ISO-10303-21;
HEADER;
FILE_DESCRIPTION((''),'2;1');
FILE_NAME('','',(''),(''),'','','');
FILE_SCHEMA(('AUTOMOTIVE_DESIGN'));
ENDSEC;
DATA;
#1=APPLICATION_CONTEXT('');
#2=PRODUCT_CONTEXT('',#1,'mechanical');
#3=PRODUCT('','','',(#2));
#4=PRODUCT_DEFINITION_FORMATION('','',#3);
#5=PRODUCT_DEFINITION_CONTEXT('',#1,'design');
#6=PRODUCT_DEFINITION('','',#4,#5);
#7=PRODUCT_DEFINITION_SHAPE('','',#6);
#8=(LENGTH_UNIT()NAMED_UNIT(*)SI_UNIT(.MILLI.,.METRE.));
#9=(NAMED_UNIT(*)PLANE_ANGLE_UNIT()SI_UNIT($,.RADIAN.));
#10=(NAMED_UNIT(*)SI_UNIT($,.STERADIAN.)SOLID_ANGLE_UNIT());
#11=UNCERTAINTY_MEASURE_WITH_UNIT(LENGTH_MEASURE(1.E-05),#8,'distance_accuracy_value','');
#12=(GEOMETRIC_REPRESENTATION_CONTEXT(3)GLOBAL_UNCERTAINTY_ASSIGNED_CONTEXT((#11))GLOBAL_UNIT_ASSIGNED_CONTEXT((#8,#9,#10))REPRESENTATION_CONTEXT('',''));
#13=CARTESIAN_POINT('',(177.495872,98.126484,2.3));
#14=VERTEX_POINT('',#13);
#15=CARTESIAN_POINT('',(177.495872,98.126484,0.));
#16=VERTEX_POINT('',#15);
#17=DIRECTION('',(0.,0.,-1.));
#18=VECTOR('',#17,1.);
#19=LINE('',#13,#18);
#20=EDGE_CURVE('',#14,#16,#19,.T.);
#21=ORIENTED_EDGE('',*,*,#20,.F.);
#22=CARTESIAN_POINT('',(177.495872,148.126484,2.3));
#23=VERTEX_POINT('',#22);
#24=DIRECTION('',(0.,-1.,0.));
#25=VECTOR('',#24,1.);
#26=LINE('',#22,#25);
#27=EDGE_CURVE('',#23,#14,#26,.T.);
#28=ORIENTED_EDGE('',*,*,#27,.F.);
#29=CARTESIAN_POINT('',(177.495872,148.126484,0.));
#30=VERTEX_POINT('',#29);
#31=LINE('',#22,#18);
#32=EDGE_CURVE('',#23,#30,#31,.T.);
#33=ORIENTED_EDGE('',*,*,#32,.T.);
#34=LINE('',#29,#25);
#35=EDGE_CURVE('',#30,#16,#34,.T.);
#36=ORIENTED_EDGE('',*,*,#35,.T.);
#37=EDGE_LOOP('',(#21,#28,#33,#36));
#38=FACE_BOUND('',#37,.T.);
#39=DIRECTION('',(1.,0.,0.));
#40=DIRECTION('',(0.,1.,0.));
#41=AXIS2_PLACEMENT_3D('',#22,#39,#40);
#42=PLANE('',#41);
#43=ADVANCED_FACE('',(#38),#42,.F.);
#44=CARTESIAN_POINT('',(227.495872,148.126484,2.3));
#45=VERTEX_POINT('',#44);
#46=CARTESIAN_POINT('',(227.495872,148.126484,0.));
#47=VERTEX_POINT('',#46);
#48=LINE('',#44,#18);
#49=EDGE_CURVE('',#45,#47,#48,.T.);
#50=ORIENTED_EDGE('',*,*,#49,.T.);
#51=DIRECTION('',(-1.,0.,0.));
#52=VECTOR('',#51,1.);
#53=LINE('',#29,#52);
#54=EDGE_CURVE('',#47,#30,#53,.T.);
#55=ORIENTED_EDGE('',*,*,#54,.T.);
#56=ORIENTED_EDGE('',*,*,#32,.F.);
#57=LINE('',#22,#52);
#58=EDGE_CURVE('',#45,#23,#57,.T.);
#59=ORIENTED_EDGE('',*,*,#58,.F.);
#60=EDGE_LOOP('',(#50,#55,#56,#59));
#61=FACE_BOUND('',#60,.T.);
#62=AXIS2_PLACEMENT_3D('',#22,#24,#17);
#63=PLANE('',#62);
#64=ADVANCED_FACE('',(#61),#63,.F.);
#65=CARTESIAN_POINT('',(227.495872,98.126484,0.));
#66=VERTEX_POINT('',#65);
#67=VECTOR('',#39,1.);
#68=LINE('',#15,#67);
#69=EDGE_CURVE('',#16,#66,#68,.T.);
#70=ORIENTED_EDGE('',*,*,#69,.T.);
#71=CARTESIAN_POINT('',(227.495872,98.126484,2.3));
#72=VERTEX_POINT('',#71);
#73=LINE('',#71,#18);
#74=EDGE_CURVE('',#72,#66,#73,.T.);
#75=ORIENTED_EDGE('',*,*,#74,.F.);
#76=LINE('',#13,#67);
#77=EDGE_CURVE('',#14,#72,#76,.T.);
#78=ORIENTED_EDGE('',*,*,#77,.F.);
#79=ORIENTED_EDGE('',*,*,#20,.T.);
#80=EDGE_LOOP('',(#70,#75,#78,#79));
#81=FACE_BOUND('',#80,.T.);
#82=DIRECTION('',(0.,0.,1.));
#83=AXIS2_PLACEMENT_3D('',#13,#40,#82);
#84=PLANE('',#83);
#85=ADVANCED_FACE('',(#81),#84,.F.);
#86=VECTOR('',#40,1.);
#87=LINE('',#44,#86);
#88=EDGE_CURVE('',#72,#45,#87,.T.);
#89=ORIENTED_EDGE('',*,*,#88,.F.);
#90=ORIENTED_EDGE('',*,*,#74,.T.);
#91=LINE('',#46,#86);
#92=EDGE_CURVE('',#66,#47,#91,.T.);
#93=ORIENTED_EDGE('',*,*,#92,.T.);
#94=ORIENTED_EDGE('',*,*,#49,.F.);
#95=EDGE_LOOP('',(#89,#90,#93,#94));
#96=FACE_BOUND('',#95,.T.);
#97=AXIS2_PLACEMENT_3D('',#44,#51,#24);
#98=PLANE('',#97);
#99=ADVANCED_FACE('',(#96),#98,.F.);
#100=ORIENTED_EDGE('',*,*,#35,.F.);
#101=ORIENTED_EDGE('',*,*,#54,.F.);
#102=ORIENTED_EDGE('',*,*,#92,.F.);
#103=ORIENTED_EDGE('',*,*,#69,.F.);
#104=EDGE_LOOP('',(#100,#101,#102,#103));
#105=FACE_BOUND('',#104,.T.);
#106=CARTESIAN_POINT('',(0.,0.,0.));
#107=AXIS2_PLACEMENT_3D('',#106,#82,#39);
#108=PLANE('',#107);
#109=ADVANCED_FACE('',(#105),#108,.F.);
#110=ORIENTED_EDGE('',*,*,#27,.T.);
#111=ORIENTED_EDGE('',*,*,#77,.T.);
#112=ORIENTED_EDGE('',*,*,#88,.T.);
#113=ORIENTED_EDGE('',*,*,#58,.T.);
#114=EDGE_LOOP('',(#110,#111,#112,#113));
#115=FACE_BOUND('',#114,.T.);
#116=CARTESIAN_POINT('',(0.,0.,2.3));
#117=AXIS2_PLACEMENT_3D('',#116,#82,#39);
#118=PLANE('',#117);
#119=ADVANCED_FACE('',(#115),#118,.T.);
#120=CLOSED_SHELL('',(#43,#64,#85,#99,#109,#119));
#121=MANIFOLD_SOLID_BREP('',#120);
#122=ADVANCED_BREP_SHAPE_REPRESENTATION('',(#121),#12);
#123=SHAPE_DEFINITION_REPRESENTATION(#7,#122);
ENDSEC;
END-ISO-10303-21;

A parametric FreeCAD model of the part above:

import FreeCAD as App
import Part
import Sketcher
from FreeCAD import Vector
Q = App.Units.Quantity


def add_polygon(sketch, points):
    """Adds a closed chain of lines whose ends are joined by coincident constraints."""
    first, n = sketch.GeometryCount, len(points)
    for a, b in zip(points, points[1:] + points[:1]):
        sketch.addGeometry(Part.LineSegment(App.Vector(*a, 0), App.Vector(*b, 0)), False)
    for i in range(n):
        sketch.addConstraint(Sketcher.Constraint("Coincident", first + i, 2, first + (i + 1) % n, 1))

doc = App.newDocument("Part")
body = doc.addObject("PartDesign::Body", "Body")

# Sketch on XY plane
sketch1 = body.newObject("Sketcher::SketchObject", "Sketch")
sketch1.AttachmentSupport = (doc.getObject("XY_Plane"), [""])
sketch1.MapMode = "FlatFace"
add_polygon(sketch1, [(177, 148), (177, 98), (227, 98), (227, 148)])  # lines 0-3
sketch1.addConstraint([
    Sketcher.Constraint("Vertical", 0),
    Sketcher.Constraint("Horizontal", 1),
    Sketcher.Constraint("Vertical", 2),
    Sketcher.Constraint("Horizontal", 3),
    Sketcher.Constraint("Equal", 3, 0),
    Sketcher.Constraint("DistanceX", 1, 1, 1, 2, Q("50 mm")),
    Sketcher.Constraint("DistanceX", -1, 1, 0, 2, Q("177.495872 mm")),
    Sketcher.Constraint("DistanceY", -1, 1, 0, 2, Q("98.126484 mm")),
])
pad1 = body.newObject("PartDesign::Pad", "Pad")
pad1.Profile = sketch1
pad1.Length = 2.3

doc.recompute()
